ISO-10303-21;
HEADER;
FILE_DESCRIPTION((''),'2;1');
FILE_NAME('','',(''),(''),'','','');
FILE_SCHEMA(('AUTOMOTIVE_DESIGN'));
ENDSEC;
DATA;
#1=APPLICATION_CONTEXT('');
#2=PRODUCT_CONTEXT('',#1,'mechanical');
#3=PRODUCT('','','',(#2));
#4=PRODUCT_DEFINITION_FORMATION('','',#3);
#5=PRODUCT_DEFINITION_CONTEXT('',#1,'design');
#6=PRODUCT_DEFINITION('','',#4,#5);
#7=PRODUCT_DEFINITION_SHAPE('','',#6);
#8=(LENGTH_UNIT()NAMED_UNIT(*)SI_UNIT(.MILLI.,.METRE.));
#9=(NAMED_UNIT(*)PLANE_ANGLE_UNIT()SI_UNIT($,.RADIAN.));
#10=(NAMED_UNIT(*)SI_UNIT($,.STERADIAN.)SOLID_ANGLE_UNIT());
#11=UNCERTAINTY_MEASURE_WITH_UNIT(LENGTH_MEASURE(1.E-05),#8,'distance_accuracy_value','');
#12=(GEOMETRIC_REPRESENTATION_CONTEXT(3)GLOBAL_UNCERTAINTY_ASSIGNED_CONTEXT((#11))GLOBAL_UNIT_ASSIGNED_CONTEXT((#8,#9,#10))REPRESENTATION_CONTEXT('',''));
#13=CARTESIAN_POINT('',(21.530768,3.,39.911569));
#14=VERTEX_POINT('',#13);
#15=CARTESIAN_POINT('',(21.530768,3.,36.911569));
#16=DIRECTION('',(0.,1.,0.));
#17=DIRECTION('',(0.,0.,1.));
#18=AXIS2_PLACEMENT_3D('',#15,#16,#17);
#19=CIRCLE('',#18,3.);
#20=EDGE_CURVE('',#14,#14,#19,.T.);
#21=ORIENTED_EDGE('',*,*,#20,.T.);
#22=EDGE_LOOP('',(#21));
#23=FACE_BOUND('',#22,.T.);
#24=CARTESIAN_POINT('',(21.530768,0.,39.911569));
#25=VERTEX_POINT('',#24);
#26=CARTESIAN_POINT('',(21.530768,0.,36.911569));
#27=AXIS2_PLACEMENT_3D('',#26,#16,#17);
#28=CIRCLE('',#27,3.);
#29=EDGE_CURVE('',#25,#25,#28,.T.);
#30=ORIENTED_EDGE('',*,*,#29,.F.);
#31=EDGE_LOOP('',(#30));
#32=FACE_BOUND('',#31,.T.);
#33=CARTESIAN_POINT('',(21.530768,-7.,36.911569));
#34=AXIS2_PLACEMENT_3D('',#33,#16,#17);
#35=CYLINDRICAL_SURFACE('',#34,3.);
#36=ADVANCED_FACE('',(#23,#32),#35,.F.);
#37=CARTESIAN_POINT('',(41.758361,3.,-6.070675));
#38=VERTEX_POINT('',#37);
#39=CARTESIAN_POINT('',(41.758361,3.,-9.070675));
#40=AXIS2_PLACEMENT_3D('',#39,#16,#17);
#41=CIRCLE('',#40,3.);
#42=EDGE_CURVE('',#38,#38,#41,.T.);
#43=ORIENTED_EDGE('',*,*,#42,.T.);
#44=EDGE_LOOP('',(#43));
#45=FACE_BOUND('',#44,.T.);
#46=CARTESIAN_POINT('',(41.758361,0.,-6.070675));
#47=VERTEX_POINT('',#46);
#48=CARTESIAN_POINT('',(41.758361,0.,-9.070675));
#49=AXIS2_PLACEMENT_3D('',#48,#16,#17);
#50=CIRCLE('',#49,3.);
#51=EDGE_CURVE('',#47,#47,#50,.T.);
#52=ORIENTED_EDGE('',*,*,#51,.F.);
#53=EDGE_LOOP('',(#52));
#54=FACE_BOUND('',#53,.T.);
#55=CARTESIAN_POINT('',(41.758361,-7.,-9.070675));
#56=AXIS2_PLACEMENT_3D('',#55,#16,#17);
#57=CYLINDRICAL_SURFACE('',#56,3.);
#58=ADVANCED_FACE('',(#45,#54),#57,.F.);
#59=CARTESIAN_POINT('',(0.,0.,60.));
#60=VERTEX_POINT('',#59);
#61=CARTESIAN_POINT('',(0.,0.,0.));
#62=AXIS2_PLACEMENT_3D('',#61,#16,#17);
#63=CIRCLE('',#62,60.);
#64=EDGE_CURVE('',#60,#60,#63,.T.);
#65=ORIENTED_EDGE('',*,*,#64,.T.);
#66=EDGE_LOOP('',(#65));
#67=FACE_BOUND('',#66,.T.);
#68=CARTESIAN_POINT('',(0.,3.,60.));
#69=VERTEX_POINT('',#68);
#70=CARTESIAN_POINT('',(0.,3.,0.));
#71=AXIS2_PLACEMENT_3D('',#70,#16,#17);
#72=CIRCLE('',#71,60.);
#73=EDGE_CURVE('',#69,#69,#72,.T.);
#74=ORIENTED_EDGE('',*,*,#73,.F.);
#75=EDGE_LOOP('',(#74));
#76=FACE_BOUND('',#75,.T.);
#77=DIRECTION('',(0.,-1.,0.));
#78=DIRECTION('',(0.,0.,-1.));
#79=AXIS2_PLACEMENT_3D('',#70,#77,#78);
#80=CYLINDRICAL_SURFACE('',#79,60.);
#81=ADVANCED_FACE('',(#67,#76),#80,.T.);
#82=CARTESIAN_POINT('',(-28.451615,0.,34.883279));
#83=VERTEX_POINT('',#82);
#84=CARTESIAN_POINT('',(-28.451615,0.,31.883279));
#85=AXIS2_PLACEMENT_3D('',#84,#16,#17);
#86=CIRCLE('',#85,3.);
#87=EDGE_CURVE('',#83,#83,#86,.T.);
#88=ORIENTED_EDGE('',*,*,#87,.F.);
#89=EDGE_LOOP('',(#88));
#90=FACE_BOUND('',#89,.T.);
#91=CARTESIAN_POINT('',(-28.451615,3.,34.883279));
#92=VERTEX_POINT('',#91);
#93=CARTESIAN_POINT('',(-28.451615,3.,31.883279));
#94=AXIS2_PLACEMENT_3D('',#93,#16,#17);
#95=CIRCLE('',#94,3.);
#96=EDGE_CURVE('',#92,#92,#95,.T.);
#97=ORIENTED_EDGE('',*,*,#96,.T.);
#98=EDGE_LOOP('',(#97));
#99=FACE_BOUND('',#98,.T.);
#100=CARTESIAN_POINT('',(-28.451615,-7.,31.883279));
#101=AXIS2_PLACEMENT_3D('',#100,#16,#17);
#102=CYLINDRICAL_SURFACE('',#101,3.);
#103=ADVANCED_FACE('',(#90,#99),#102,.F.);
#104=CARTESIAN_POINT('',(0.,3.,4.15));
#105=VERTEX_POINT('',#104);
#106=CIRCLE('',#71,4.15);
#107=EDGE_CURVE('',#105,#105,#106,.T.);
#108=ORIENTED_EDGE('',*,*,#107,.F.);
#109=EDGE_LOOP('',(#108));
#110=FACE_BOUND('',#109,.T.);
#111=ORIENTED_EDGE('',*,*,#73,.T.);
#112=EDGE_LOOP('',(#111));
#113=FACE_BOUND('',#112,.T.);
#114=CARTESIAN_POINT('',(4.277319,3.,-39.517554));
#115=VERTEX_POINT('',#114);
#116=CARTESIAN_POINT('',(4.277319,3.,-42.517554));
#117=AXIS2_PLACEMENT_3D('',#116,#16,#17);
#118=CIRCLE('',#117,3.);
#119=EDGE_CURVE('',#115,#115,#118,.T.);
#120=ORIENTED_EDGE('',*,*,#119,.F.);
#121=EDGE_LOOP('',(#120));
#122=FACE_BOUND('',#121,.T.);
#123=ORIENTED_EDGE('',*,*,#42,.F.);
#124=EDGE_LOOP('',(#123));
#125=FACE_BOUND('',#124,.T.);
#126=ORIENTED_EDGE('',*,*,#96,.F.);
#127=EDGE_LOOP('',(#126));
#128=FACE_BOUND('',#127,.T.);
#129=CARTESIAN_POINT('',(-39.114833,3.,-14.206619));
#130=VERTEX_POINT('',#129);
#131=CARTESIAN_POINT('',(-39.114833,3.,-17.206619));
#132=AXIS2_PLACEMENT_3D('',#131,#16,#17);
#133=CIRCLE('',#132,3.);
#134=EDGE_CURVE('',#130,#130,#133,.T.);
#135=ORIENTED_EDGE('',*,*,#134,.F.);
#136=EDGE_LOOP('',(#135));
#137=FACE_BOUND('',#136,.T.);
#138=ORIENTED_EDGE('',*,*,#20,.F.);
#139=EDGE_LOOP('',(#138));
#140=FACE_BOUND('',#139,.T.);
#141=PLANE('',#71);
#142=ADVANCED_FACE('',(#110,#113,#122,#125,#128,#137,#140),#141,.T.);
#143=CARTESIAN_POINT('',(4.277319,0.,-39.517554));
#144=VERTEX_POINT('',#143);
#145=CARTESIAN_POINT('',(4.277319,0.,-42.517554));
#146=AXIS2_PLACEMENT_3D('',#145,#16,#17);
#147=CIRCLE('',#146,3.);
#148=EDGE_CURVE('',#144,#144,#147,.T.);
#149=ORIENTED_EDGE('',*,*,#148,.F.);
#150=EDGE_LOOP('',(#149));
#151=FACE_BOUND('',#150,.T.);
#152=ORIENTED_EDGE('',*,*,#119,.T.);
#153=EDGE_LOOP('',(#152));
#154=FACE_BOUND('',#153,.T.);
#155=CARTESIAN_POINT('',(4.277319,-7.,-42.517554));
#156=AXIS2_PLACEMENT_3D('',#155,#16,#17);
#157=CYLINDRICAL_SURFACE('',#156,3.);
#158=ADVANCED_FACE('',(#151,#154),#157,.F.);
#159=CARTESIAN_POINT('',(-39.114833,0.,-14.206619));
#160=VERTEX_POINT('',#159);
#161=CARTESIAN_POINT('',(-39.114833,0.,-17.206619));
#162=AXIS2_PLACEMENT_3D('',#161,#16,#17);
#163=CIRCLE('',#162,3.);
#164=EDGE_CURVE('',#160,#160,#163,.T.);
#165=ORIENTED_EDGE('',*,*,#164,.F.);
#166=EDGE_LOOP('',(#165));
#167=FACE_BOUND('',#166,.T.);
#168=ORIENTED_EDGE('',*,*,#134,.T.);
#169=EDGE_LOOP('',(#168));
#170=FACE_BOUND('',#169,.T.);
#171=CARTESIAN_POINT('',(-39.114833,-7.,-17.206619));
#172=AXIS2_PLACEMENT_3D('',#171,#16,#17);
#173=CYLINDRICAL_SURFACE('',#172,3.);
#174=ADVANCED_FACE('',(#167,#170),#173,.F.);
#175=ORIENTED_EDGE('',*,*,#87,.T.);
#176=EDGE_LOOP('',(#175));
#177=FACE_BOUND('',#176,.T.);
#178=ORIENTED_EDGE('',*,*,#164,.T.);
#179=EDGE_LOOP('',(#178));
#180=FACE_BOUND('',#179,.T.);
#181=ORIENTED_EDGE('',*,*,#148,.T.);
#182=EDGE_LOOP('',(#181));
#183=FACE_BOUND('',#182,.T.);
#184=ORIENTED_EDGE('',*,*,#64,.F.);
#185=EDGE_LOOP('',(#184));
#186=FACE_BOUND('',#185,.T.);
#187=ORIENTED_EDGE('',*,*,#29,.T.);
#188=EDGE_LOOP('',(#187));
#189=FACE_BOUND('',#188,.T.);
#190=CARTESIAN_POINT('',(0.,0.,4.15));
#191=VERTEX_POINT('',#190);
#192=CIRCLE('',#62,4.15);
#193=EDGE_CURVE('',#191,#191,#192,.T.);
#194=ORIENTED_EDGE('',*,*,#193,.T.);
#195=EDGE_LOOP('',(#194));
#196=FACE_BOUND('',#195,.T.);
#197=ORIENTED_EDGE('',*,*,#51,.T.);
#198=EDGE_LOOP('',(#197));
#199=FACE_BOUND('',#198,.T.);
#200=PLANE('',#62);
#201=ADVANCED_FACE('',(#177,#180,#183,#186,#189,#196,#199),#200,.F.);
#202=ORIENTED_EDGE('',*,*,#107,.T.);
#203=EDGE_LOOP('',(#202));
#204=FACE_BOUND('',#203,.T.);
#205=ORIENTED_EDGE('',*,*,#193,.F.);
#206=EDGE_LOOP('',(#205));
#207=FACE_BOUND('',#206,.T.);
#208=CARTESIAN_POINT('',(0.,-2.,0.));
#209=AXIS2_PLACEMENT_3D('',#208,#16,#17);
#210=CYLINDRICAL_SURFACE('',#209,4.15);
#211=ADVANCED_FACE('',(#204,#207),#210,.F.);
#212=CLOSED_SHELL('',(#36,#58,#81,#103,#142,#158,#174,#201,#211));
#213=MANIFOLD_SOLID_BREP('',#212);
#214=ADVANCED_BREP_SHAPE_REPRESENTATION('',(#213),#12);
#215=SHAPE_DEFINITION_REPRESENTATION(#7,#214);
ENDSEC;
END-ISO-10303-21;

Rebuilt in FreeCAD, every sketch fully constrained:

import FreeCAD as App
import Part
import Sketcher

V = App.Vector

doc = App.newDocument("Part")
body = doc.addObject("PartDesign::Body", "Body")

# Sketch on XZ plane
sketch1 = body.newObject("Sketcher::SketchObject", "Sketch")
sketch1.AttachmentSupport = (doc.getObject("XZ_Plane"), [""])
sketch1.MapMode = "FlatFace"
sketch1.addGeometry(Part.Circle(V(0, 0, 0), V(0, 0, 1), 60), False)
sketch1.addConstraint(Sketcher.Constraint("Coincident", 0, 3, -1, 1))
sketch1.addConstraint(Sketcher.Constraint("Diameter", 0, 120.0))
pad1 = body.newObject("PartDesign::Pad", "Pad")
pad1.Profile = sketch1
pad1.Length = 3
pad1.Reversed = True

# Sketch on XZ plane
sketch2 = body.newObject("Sketcher::SketchObject", "Sketch001")
sketch2.AttachmentSupport = (doc.getObject("XZ_Plane"), [""])
sketch2.MapMode = "FlatFace"
sketch2.AttachmentOffset = App.Placement(V(0, 0, -3), App.Rotation())
sketch2.addGeometry(Part.Circle(V(0, 0, 0), V(0, 0, 1), 4.2), False)
sketch2.addConstraint(Sketcher.Constraint("Coincident", 0, 3, -1, 1))
sketch2.addConstraint(Sketcher.Constraint("Diameter", 0, 8.3))
pocket1 = body.newObject("PartDesign::Pocket", "Pocket")
pocket1.Profile = sketch2
pocket1.Length = 5
pocket1.Reversed = True

# Sketch on XZ plane
sketch3 = body.newObject("Sketcher::SketchObject", "Sketch002")
sketch3.AttachmentSupport = (doc.getObject("XZ_Plane"), [""])
sketch3.MapMode = "FlatFace"
sketch3.AttachmentOffset = App.Placement(V(0, 0, -3), App.Rotation())
sketch3.addGeometry(Part.Circle(V(-28.5, 31.9, 0), V(0, 0, 1), 3), False)
sketch3.addGeometry(Part.Circle(V(-39.1, -17.2, 0), V(0, 0, 1), 3), False)
sketch3.addGeometry(Part.Circle(V(4.3, -42.5, 0), V(0, 0, 1), 3), False)
sketch3.addGeometry(Part.Circle(V(41.8, -9.1, 0), V(0, 0, 1), 3), False)
sketch3.addGeometry(Part.Circle(V(21.5, 36.9, 0), V(0, 0, 1), 3), False)
sketch3.addConstraint(Sketcher.Constraint("Equal", 0, 1))
sketch3.addConstraint(Sketcher.Constraint("Equal", 1, 2))
sketch3.addConstraint(Sketcher.Constraint("Equal", 2, 3))
sketch3.addConstraint(Sketcher.Constraint("Equal", 3, 4))
sketch3.addConstraint(Sketcher.Constraint("Diameter", 0, 6.0))
sketch3.addConstraint(Sketcher.Constraint("DistanceX", 1, 3, 4, 3, 60.6456))
sketch3.addConstraint(Sketcher.Constraint("DistanceY", -1, 1, 0, 3, 31.883279))
sketch3.addConstraint(Sketcher.Constraint("DistanceY", 1, 3, -1, 1, 17.206619))
sketch3.addConstraint(Sketcher.Constraint("DistanceX", -1, 1, 2, 3, 4.277319))
sketch3.addConstraint(Sketcher.Constraint("DistanceX", -1, 1, 3, 3, 41.758361))
sketch3.addConstraint(Sketcher.Constraint("DistanceY", -1, 1, 4, 3, 36.911569))
sketch3.addConstraint(Sketcher.Constraint("DistanceX", 1, 3, 2, 3, 43.392151))
sketch3.addConstraint(Sketcher.Constraint("DistanceY", 2, 3, 3, 3, 33.446879))
sketch3.addConstraint(Sketcher.Constraint("DistanceX", 0, 3, -1, 1, 28.451615))
sketch3.addConstraint(Sketcher.Constraint("DistanceY", 2, 3, -1, 1, 42.517554))
pocket2 = body.newObject("PartDesign::Pocket", "Pocket001")
pocket2.Profile = sketch3
pocket2.Length = 10
pocket2.Reversed = True

doc.recompute()
